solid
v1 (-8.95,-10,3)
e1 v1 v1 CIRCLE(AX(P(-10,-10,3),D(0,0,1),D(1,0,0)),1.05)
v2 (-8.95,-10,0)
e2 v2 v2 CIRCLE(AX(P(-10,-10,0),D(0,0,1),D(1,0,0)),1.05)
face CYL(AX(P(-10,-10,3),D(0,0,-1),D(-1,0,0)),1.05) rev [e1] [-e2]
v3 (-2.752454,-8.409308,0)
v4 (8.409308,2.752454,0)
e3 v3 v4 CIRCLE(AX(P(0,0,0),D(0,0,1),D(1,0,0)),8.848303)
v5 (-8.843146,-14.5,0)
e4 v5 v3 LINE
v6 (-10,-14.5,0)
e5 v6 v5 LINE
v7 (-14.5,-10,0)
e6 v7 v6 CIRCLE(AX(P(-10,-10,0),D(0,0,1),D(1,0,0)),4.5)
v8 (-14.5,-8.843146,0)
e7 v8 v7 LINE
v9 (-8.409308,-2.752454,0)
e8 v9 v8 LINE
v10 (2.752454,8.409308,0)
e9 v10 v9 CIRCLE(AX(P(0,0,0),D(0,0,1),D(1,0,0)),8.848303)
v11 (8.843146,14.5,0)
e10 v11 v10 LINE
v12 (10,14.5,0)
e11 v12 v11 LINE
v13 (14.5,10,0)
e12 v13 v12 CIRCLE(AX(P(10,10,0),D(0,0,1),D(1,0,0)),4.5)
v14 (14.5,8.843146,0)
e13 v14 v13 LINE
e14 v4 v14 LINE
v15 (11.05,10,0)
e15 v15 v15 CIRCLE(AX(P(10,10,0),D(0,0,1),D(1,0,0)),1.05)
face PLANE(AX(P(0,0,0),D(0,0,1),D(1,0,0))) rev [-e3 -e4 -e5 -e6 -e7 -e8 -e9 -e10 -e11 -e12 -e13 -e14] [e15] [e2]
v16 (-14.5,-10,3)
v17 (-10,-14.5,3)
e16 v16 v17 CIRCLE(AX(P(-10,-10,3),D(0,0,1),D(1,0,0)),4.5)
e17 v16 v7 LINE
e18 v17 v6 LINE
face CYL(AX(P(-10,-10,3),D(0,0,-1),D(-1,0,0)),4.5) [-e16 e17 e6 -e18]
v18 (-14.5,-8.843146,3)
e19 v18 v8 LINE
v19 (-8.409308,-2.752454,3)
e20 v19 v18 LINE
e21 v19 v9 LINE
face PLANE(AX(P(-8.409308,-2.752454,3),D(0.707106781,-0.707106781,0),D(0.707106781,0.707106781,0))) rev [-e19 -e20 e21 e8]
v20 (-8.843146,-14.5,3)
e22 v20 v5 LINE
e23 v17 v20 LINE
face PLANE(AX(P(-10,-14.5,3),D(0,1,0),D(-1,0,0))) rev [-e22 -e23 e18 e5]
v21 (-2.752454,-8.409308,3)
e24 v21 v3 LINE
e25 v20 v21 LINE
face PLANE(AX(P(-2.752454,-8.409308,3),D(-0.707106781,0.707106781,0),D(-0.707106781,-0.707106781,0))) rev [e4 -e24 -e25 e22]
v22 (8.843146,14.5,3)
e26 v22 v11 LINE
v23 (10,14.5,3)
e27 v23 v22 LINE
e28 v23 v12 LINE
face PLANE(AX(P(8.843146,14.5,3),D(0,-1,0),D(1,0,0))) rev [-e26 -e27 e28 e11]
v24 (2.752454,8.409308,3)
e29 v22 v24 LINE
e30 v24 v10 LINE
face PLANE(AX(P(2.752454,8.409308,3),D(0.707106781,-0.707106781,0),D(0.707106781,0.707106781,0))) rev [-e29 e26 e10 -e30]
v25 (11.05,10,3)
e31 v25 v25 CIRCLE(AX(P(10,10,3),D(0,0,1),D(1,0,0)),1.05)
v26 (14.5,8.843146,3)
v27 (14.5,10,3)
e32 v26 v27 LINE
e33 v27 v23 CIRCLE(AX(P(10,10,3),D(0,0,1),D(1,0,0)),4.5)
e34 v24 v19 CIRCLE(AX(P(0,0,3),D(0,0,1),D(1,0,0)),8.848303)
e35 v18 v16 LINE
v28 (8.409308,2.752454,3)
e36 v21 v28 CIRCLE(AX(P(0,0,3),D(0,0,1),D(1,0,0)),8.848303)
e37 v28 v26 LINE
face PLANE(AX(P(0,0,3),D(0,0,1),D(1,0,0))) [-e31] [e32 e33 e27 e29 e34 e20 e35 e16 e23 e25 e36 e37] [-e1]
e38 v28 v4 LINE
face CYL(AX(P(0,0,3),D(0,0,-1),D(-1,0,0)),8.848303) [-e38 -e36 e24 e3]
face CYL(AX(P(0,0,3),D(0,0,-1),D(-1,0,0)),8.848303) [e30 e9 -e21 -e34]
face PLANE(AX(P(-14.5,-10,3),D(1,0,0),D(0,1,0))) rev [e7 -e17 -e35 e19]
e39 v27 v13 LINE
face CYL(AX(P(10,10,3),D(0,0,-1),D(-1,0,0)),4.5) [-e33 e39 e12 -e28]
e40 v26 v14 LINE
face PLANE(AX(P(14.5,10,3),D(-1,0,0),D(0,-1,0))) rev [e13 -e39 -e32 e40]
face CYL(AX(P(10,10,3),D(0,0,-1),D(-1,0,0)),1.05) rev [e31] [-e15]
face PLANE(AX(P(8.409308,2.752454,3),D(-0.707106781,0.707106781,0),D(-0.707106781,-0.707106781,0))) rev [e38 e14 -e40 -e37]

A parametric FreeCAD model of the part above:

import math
import FreeCAD as App
import Part
import Sketcher
from FreeCAD import Vector
Q = App.Units.Quantity

doc = App.newDocument("Part")
body = doc.addObject("PartDesign::Body", "Body")

# Sketch on XY plane
sketch1 = doc.addObject("Sketcher::SketchObject", "Sketch")
body.addObject(sketch1)
sketch1.AttachmentSupport = (doc.XY_Plane, [""])
sketch1.MapMode = "FlatFace"
sketch1.addGeometry(Part.LineSegment(Vector(8.843146, 14.5, 0), Vector(2.752454, 8.409308, 0)), False)
sketch1.addGeometry(Part.ArcOfCircle(Part.Circle(Vector(0, 0, 0), Vector(0, 0, 1), 8.848303), math.radians(71.87619), math.radians(198.12381)), False)
sketch1.addGeometry(Part.LineSegment(Vector(-8.409308, -2.752454, 0), Vector(-14.5, -8.843146, 0)), False)
sketch1.addGeometry(Part.LineSegment(Vector(-14.5, -8.843146, 0), Vector(-14.5, -10, 0)), False)
sketch1.addGeometry(Part.ArcOfCircle(Part.Circle(Vector(-10, -10, 0), Vector(0, 0, 1), 4.5), math.radians(-180), math.radians(-90)), False)
sketch1.addGeometry(Part.LineSegment(Vector(-10, -14.5, 0), Vector(-8.843146, -14.5, 0)), False)
sketch1.addGeometry(Part.LineSegment(Vector(-8.843146, -14.5, 0), Vector(-2.752454, -8.409308, 0)), False)
sketch1.addGeometry(Part.ArcOfCircle(Part.Circle(Vector(0, 0, 0), Vector(0, 0, 1), 8.848303), math.radians(-108.12381), math.radians(18.12381)), False)
sketch1.addGeometry(Part.LineSegment(Vector(8.409308, 2.752454, 0), Vector(14.5, 8.843146, 0)), False)
sketch1.addGeometry(Part.LineSegment(Vector(14.5, 8.843146, 0), Vector(14.5, 10, 0)), False)
sketch1.addGeometry(Part.ArcOfCircle(Part.Circle(Vector(10, 10, 0), Vector(0, 0, 1), 4.5), math.radians(0), math.radians(90)), False)
sketch1.addGeometry(Part.LineSegment(Vector(10, 14.5, 0), Vector(8.843146, 14.5, 0)), False)
sketch1.addGeometry(Part.Circle(Vector(-10, -10, 0), Vector(0, 0, 1), 1.05), False)
sketch1.addGeometry(Part.Circle(Vector(10, 10, 0), Vector(0, 0, 1), 1.05), False)
sketch1.addConstraint(Sketcher.Constraint("Coincident", 0, 2, 1, 1))
sketch1.addConstraint(Sketcher.Constraint("Coincident", 1, 2, 2, 1))
sketch1.addConstraint(Sketcher.Constraint("Coincident", 2, 2, 3, 1))
sketch1.addConstraint(Sketcher.Constraint("Tangent", 3, 2, 4, 1))
sketch1.addConstraint(Sketcher.Constraint("Tangent", 4, 2, 5, 1))
sketch1.addConstraint(Sketcher.Constraint("Coincident", 5, 2, 6, 1))
sketch1.addConstraint(Sketcher.Constraint("Coincident", 6, 2, 7, 1))
sketch1.addConstraint(Sketcher.Constraint("Coincident", 7, 2, 8, 1))
sketch1.addConstraint(Sketcher.Constraint("Coincident", 8, 2, 9, 1))
sketch1.addConstraint(Sketcher.Constraint("Tangent", 9, 2, 10, 1))
sketch1.addConstraint(Sketcher.Constraint("Tangent", 10, 2, 11, 1))
sketch1.addConstraint(Sketcher.Constraint("Coincident", 11, 2, 0, 1))
sketch1.addConstraint(Sketcher.Constraint("Vertical", 3))
sketch1.addConstraint(Sketcher.Constraint("Horizontal", 5))
sketch1.addConstraint(Sketcher.Constraint("Vertical", 9))
sketch1.addConstraint(Sketcher.Constraint("Horizontal", 11))
sketch1.addConstraint(Sketcher.Constraint("Coincident", 1, 3, -1, 1))
sketch1.addConstraint(Sketcher.Constraint("Coincident", 7, 3, -1, 1))
sketch1.addConstraint(Sketcher.Constraint("Coincident", 12, 3, 4, 3))
sketch1.addConstraint(Sketcher.Constraint("Coincident", 13, 3, 10, 3))
sketch1.addConstraint(Sketcher.Constraint("Equal", 1, 7))
sketch1.addConstraint(Sketcher.Constraint("Equal", 4, 10))
sketch1.addConstraint(Sketcher.Constraint("Equal", 12, 13))
sketch1.addConstraint(Sketcher.Constraint("Symmetric", 4, 3, 10, 3, -1, 1))
sketch1.addConstraint(Sketcher.Constraint("Parallel", 0, 2))
sketch1.addConstraint(Sketcher.Constraint("Parallel", 2, 6))
sketch1.addConstraint(Sketcher.Constraint("Parallel", 6, 8))
sketch1.addConstraint(Sketcher.Constraint("Equal", 5, 11))
sketch1.addConstraint(Sketcher.Constraint("Equal", 11, 3))
sketch1.addConstraint(Sketcher.Constraint("Equal", 3, 9))
sketch1.addConstraint(Sketcher.Constraint("Equal", 0, 2))
sketch1.addConstraint(Sketcher.Constraint("Diameter", 12, Q("2.1 mm")))
sketch1.addConstraint(Sketcher.Constraint("Radius", 4, Q("4.5 mm")))
sketch1.addConstraint(Sketcher.Constraint("Angle", 0, Q("-135 deg")))
sketch1.addConstraint(Sketcher.Constraint("DistanceX", 4, 3, -1, 1, Q("10 mm")))
sketch1.addConstraint(Sketcher.Constraint("Radius", 1, Q("8.848303 mm")))
sketch1.addConstraint(Sketcher.Constraint("Distance", 0, Q("8.613539 mm")))
pad1 = doc.addObject("PartDesign::Pad", "Pad")
body.addObject(pad1)
pad1.Profile = sketch1
pad1.Length = 3

doc.recompute()
